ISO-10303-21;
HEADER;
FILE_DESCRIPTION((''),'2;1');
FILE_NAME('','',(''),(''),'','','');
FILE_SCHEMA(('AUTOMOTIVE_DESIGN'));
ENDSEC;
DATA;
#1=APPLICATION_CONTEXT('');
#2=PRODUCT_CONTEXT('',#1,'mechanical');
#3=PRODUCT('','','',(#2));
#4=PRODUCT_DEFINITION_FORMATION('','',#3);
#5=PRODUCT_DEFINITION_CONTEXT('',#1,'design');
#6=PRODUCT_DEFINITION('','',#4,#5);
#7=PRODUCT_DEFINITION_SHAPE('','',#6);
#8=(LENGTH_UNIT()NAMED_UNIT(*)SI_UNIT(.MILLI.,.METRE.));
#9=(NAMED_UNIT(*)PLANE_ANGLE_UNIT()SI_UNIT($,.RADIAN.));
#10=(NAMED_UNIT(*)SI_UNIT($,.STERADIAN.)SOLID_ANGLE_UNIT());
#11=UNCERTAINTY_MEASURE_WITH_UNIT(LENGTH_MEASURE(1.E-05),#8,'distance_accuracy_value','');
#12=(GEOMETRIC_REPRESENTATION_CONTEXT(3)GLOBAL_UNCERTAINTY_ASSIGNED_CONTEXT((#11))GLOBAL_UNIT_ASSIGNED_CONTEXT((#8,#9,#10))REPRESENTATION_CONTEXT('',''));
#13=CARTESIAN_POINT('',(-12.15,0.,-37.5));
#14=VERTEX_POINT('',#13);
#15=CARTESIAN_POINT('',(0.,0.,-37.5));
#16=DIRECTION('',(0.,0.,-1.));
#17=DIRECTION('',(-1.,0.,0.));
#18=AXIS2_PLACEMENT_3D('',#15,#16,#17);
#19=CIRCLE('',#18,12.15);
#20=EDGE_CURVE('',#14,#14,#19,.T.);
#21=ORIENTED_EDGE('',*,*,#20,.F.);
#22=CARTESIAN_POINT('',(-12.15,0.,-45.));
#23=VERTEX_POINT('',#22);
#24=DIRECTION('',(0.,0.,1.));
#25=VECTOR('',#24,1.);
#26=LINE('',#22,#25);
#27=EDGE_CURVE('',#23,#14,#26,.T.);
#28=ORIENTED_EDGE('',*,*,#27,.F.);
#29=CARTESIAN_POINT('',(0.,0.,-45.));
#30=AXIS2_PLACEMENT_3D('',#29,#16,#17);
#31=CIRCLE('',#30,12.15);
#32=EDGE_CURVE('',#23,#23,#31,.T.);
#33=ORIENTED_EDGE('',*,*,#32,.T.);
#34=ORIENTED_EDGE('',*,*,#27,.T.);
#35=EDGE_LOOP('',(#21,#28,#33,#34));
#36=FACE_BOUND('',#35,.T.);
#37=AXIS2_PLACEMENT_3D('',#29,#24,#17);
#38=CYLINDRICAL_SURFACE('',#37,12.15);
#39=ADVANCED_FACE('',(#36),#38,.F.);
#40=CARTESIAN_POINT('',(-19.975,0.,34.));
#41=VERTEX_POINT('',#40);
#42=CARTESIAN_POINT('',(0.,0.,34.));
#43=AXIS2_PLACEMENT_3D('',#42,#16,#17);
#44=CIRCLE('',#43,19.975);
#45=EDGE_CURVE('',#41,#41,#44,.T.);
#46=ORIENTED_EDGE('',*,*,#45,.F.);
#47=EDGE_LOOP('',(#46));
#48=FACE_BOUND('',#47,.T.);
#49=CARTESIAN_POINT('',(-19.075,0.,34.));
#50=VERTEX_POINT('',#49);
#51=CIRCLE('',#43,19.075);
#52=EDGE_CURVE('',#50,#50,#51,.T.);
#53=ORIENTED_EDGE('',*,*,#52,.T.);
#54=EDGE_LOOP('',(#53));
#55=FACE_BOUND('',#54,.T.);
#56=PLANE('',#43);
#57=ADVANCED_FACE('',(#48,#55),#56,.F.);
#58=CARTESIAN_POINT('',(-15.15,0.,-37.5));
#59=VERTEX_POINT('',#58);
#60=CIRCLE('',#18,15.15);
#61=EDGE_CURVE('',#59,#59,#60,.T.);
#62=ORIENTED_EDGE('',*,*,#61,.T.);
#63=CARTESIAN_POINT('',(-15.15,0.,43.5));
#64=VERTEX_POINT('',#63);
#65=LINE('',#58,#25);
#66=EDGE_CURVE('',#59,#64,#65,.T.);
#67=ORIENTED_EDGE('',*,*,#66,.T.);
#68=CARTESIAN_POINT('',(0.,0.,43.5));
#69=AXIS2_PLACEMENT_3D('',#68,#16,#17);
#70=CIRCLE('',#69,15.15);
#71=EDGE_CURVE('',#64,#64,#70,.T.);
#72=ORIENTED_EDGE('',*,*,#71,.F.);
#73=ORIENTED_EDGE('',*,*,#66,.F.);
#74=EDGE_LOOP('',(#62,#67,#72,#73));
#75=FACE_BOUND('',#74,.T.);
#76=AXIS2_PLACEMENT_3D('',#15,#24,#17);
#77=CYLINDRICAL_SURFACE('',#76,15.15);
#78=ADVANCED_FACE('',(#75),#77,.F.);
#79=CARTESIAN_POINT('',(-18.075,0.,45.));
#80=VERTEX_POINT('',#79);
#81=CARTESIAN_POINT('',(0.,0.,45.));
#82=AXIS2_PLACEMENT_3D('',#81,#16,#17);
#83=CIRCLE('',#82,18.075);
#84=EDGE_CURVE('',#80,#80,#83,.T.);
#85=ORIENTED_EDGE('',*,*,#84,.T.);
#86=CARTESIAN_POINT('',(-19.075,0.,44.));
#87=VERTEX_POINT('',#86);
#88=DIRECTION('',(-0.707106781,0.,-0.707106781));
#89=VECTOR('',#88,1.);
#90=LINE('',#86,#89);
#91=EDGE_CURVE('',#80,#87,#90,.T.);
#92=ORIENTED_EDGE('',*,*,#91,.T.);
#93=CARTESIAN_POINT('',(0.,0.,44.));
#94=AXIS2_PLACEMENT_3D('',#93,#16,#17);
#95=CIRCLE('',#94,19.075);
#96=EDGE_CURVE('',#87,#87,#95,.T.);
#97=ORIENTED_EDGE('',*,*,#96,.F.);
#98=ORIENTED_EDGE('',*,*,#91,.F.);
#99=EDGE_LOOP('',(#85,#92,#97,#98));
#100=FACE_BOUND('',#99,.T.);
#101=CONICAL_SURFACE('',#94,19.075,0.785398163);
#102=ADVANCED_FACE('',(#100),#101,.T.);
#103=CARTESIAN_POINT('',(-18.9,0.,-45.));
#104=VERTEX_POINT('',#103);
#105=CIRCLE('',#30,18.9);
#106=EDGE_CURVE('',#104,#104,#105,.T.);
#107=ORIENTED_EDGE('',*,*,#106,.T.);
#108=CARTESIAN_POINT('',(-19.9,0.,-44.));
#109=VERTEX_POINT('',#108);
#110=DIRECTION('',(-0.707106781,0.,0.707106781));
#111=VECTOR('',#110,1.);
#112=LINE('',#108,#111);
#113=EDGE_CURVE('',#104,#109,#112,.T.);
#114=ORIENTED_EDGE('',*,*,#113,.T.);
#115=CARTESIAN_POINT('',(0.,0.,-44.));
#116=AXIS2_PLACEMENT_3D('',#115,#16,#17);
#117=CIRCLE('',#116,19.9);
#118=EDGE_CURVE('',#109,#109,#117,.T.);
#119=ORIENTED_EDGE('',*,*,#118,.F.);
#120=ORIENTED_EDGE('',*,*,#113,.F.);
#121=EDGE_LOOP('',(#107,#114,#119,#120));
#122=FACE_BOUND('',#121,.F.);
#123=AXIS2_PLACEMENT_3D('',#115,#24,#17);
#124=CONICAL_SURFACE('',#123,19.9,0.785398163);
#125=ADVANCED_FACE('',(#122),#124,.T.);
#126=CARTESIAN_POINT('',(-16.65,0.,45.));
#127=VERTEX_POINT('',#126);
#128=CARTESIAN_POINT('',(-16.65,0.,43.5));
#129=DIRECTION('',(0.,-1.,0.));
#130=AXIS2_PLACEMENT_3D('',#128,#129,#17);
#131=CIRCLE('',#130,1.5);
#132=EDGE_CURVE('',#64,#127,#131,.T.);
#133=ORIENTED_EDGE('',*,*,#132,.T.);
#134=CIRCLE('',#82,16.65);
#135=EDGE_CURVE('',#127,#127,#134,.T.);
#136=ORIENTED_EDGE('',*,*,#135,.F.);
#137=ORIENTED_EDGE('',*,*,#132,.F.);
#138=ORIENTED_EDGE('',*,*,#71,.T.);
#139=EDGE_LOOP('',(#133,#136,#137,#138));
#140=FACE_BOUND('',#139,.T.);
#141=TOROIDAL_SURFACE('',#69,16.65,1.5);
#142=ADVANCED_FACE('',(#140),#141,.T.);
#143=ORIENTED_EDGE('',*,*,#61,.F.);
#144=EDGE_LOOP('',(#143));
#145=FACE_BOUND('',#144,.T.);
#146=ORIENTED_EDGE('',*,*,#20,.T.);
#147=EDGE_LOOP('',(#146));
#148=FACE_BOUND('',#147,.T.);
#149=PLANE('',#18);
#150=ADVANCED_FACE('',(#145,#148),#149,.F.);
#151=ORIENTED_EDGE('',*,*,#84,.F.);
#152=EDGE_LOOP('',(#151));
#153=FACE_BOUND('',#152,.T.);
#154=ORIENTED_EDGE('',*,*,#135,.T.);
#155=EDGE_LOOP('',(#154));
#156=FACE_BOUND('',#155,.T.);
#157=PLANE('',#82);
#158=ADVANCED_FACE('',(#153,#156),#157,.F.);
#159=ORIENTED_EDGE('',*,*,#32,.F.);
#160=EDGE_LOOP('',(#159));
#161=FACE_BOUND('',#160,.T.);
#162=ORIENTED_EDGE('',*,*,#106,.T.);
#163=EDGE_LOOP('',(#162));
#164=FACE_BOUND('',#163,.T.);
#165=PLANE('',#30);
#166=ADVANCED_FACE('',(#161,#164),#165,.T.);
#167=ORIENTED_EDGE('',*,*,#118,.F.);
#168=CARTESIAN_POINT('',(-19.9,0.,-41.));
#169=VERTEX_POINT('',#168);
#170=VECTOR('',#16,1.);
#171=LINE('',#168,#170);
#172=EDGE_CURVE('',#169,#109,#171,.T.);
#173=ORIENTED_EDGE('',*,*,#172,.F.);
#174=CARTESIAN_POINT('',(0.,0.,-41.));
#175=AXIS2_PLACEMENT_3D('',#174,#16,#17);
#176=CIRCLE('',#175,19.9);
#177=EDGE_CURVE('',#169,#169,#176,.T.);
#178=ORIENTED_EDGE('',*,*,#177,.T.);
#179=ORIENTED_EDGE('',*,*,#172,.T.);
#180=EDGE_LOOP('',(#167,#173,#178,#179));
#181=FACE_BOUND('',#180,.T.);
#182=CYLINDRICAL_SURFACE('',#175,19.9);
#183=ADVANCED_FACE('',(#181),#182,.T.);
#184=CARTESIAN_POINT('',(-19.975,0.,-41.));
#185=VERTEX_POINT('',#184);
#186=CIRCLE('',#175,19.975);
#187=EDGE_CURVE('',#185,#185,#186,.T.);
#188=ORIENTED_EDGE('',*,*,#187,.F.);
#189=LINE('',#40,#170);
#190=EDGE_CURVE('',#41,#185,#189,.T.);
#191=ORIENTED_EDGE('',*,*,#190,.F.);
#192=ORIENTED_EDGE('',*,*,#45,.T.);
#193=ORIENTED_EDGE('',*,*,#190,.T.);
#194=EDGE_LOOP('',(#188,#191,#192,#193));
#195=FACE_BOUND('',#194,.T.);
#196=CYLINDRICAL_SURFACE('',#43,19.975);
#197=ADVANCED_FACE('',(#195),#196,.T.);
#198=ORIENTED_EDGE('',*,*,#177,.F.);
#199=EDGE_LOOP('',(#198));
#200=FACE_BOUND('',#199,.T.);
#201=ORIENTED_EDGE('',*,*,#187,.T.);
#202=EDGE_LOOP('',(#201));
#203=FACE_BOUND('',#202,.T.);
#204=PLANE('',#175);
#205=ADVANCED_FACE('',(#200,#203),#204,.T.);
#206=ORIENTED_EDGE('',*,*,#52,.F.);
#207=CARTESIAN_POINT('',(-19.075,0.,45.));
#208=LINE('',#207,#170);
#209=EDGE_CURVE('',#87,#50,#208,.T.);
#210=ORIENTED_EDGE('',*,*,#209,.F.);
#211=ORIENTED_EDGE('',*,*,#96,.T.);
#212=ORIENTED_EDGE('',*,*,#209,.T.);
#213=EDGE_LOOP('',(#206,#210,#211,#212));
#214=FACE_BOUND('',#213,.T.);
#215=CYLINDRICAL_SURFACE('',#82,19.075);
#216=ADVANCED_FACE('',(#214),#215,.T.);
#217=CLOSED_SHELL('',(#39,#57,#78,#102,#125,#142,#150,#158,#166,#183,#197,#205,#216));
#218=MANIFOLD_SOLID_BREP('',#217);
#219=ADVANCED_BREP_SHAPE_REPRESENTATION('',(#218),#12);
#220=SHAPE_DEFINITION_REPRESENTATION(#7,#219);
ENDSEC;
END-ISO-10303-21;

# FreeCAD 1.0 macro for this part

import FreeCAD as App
import Part
import Sketcher
from FreeCAD import Vector
Q = App.Units.Quantity


def edges_at(feature, points):
    """Names of the edges that pass closest to the given points."""
    edges = feature.Shape.Edges
    near = lambda p: min(range(len(edges)), key=lambda i: edges[i].distToShape(Part.Vertex(*p))[0])
    return sorted({f"Edge{near(p) + 1}" for p in points})

doc = App.newDocument("Part")
body = doc.addObject("PartDesign::Body", "Body")

sketch1 = body.newObject("Sketcher::SketchObject", "Sketch")
sketch1.AttachmentSupport = (doc.getObject("XZ_Plane"), [""])
sketch1.MapMode = "FlatFace"
sketch1.addGeometry(Part.LineSegment(Vector(-15.15, -37.5, 0), Vector(-15.15, 45, 0)), False)
sketch1.addGeometry(Part.LineSegment(Vector(-15.15, 45, 0), Vector(-19.07, 45, 0)), False)
sketch1.addGeometry(Part.LineSegment(Vector(-19.07, 45, 0), Vector(-19.07, 34, 0)), False)
sketch1.addGeometry(Part.LineSegment(Vector(-19.07, 34, 0), Vector(-19.98, 34, 0)), False)
sketch1.addGeometry(Part.LineSegment(Vector(-19.98, 34, 0), Vector(-19.98, -41, 0)), False)
sketch1.addGeometry(Part.LineSegment(Vector(-19.98, -41, 0), Vector(-19.9, -41, 0)), False)
sketch1.addGeometry(Part.LineSegment(Vector(-19.9, -41, 0), Vector(-19.9, -45, 0)), False)
sketch1.addGeometry(Part.LineSegment(Vector(-19.9, -45, 0), Vector(-12.15, -45, 0)), False)
sketch1.addGeometry(Part.LineSegment(Vector(-12.15, -45, 0), Vector(-12.15, -37.5, 0)), False)
sketch1.addGeometry(Part.LineSegment(Vector(-12.15, -37.5, 0), Vector(-15.15, -37.5, 0)), False)
sketch1.addConstraint(Sketcher.Constraint("Coincident", 0, 2, 1, 1))
sketch1.addConstraint(Sketcher.Constraint("Coincident", 1, 2, 2, 1))
sketch1.addConstraint(Sketcher.Constraint("Coincident", 2, 2, 3, 1))
sketch1.addConstraint(Sketcher.Constraint("Coincident", 3, 2, 4, 1))
sketch1.addConstraint(Sketcher.Constraint("Coincident", 4, 2, 5, 1))
sketch1.addConstraint(Sketcher.Constraint("Coincident", 5, 2, 6, 1))
sketch1.addConstraint(Sketcher.Constraint("Coincident", 6, 2, 7, 1))
sketch1.addConstraint(Sketcher.Constraint("Coincident", 7, 2, 8, 1))
sketch1.addConstraint(Sketcher.Constraint("Coincident", 8, 2, 9, 1))
sketch1.addConstraint(Sketcher.Constraint("Coincident", 9, 2, 0, 1))
sketch1.addConstraint(Sketcher.Constraint("Vertical", 0))
sketch1.addConstraint(Sketcher.Constraint("Horizontal", 1))
sketch1.addConstraint(Sketcher.Constraint("Vertical", 2))
sketch1.addConstraint(Sketcher.Constraint("Horizontal", 3))
sketch1.addConstraint(Sketcher.Constraint("Vertical", 4))
sketch1.addConstraint(Sketcher.Constraint("Horizontal", 5))
sketch1.addConstraint(Sketcher.Constraint("Vertical", 6))
sketch1.addConstraint(Sketcher.Constraint("Horizontal", 7))
sketch1.addConstraint(Sketcher.Constraint("Vertical", 8))
sketch1.addConstraint(Sketcher.Constraint("Horizontal", 9))
sketch1.addConstraint(Sketcher.Constraint("DistanceX", 9, 2, 9, 1, Q("3 mm")))
sketch1.addConstraint(Sketcher.Constraint("DistanceY", 2, 2, 2, 1, Q("11 mm")))
sketch1.addConstraint(Sketcher.Constraint("DistanceY", 4, 2, 4, 1, Q("75 mm")))
sketch1.addConstraint(Sketcher.Constraint("DistanceY", 6, 2, 6, 1, Q("4 mm")))
sketch1.addConstraint(Sketcher.Constraint("DistanceX", 3, 2, 3, 1, Q("0.9 mm")))
sketch1.addConstraint(Sketcher.Constraint("DistanceY", 0, 1, 0, 2, Q("82.5 mm")))
sketch1.addConstraint(Sketcher.Constraint("DistanceY", -1, 1, 0, 2, Q("45 mm")))
sketch1.addConstraint(Sketcher.Constraint("DistanceX", 7, 1, 7, 2, Q("7.75 mm")))
sketch1.addConstraint(Sketcher.Constraint("DistanceX", 5, 2, -1, 1, Q("19.9 mm")))
sketch1.addConstraint(Sketcher.Constraint("DistanceX", 1, 2, 1, 1, Q("3.925 mm")))
revolution = body.newObject("PartDesign::Revolution", "Revolution")
revolution.Profile = sketch1
revolution.ReferenceAxis = (sketch1, ["V_Axis"])
revolution.Angle = 360
doc.recompute()

fillet = body.newObject("PartDesign::Fillet", "Fillet")
fillet.Base = (revolution, edges_at(revolution, [(15.15, 0, 45)]))
fillet.Radius = 1.5
doc.recompute()

chamfer = body.newObject("PartDesign::Chamfer", "Chamfer")
chamfer.Base = (fillet, edges_at(fillet, [(19.075, 0, 45), (19.9, 0, -45)]))
chamfer.Size = 1

doc.recompute()
